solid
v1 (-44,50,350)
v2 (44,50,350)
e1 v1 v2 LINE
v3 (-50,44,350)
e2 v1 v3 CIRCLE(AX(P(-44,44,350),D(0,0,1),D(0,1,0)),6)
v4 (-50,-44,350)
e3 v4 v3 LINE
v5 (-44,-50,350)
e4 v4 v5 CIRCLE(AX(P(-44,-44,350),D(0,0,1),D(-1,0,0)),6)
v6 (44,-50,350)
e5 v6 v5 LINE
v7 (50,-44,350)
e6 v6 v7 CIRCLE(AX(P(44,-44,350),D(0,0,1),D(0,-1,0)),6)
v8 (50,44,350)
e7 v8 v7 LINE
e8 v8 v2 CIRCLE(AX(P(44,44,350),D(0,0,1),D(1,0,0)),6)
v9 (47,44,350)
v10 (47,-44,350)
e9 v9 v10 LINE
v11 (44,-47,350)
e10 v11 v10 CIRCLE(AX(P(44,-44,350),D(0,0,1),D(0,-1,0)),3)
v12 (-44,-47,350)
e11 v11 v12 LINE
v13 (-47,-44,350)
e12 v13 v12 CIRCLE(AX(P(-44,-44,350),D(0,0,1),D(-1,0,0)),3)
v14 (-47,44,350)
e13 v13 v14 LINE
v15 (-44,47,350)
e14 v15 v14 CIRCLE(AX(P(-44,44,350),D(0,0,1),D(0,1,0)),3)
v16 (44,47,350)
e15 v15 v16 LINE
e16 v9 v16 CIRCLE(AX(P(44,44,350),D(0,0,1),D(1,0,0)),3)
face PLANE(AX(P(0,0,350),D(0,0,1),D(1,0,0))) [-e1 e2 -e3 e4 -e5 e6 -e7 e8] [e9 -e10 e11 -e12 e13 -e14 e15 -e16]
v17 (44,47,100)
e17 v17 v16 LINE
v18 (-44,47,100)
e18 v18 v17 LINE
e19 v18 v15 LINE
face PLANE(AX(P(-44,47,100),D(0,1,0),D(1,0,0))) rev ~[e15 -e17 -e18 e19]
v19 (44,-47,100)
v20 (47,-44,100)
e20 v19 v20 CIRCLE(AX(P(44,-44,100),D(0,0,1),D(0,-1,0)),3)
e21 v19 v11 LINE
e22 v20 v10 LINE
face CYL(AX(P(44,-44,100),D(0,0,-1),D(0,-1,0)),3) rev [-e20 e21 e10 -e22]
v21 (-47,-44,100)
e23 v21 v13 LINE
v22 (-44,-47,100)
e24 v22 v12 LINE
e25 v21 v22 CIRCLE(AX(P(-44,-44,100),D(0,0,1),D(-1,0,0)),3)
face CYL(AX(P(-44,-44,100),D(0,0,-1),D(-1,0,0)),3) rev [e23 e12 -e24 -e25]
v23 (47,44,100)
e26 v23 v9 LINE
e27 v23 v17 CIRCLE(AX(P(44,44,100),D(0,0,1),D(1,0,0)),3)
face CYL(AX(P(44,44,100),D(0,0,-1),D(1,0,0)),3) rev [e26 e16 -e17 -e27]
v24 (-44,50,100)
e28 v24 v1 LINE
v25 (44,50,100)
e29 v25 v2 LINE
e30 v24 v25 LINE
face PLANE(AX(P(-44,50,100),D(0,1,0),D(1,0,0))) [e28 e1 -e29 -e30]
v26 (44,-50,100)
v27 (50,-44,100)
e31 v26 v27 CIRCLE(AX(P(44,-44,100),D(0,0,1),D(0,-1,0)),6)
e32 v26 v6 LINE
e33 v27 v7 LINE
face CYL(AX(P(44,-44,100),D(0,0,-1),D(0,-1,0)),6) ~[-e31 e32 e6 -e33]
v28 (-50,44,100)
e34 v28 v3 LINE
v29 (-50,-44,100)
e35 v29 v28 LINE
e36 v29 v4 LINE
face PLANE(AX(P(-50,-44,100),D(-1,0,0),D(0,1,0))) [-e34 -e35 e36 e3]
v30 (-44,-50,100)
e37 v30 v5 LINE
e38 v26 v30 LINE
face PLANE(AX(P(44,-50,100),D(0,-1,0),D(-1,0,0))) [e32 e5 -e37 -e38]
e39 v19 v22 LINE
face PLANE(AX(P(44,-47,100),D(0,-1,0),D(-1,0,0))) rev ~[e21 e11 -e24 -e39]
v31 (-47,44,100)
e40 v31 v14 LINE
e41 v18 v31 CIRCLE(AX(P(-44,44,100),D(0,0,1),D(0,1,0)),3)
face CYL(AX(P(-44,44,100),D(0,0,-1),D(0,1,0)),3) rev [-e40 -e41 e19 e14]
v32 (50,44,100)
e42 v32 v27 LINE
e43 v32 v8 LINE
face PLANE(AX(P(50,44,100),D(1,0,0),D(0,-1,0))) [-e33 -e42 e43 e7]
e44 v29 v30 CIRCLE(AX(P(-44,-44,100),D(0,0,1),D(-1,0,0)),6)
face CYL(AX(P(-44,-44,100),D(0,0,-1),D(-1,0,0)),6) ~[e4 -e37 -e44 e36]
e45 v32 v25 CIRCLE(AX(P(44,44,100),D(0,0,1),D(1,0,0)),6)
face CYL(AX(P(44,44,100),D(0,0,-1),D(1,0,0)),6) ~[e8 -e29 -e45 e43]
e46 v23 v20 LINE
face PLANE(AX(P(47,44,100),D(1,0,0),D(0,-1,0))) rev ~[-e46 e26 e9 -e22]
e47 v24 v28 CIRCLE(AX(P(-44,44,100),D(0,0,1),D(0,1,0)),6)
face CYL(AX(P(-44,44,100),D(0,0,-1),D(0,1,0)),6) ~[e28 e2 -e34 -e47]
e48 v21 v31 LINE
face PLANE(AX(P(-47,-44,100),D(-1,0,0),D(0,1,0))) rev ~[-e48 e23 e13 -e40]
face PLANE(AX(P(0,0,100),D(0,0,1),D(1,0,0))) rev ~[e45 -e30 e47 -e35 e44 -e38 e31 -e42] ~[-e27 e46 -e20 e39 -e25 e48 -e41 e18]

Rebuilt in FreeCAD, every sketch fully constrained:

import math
import FreeCAD as App
import Part
import Sketcher

V = App.Vector

doc = App.newDocument("Part")
body = doc.addObject("PartDesign::Body", "Body")

# Sketch on XY plane
sketch1 = body.newObject("Sketcher::SketchObject", "Sketch")
sketch1.AttachmentSupport = (doc.getObject("XY_Plane"), [""])
sketch1.MapMode = "FlatFace"
sketch1.AttachmentOffset = App.Placement(V(0, 0, 100), App.Rotation())
sketch1.addGeometry([
    Part.LineSegment(V(-50, 44, 0), V(-50, -44, 0)),  # 0
    Part.ArcOfCircle(Part.Circle(V(-44, -44, 0), V(0, 0, 1), 6), math.radians(180), math.radians(270)),  # 1
    Part.LineSegment(V(-44, -50, 0), V(44, -50, 0)),  # 2
    Part.ArcOfCircle(Part.Circle(V(44, -44, 0), V(0, 0, 1), 6), math.radians(-90), math.radians(0)),  # 3
    Part.LineSegment(V(50, -44, 0), V(50, 44, 0)),  # 4
    Part.ArcOfCircle(Part.Circle(V(44, 44, 0), V(0, 0, 1), 6), math.radians(0), math.radians(90)),  # 5
    Part.LineSegment(V(44, 50, 0), V(-44, 50, 0)),  # 6
    Part.ArcOfCircle(Part.Circle(V(-44, 44, 0), V(0, 0, 1), 6), math.radians(90), math.radians(180)),  # 7
    Part.ArcOfCircle(Part.Circle(V(-44, 44, 0), V(0, 0, 1), 3), math.radians(90), math.radians(180)),  # 8
    Part.LineSegment(V(-44, 47, 0), V(44, 47, 0)),  # 9
    Part.ArcOfCircle(Part.Circle(V(44, 44, 0), V(0, 0, 1), 3), math.radians(0), math.radians(90)),  # 10
    Part.LineSegment(V(47, 44, 0), V(47, -44, 0)),  # 11
    Part.ArcOfCircle(Part.Circle(V(44, -44, 0), V(0, 0, 1), 3), math.radians(-90), math.radians(0)),  # 12
    Part.LineSegment(V(44, -47, 0), V(-44, -47, 0)),  # 13
    Part.ArcOfCircle(Part.Circle(V(-44, -44, 0), V(0, 0, 1), 3), math.radians(180), math.radians(270)),  # 14
    Part.LineSegment(V(-47, -44, 0), V(-47, 44, 0)),  # 15
], False)
sketch1.addConstraint([
    Sketcher.Constraint("Tangent", 0, 2, 1, 1),
    Sketcher.Constraint("Tangent", 1, 2, 2, 1),
    Sketcher.Constraint("Tangent", 2, 2, 3, 1),
    Sketcher.Constraint("Tangent", 3, 2, 4, 1),
    Sketcher.Constraint("Tangent", 4, 2, 5, 1),
    Sketcher.Constraint("Tangent", 5, 2, 6, 1),
    Sketcher.Constraint("Tangent", 6, 2, 7, 1),
    Sketcher.Constraint("Tangent", 7, 2, 0, 1),
    Sketcher.Constraint("Tangent", 8, 1, 9, 1),
    Sketcher.Constraint("Tangent", 9, 2, 10, 2),
    Sketcher.Constraint("Tangent", 10, 1, 11, 1),
    Sketcher.Constraint("Tangent", 11, 2, 12, 2),
    Sketcher.Constraint("Tangent", 12, 1, 13, 1),
    Sketcher.Constraint("Tangent", 13, 2, 14, 2),
    Sketcher.Constraint("Tangent", 14, 1, 15, 1),
    Sketcher.Constraint("Tangent", 15, 2, 8, 2),
    Sketcher.Constraint("Vertical", 0),
    Sketcher.Constraint("Horizontal", 2),
    Sketcher.Constraint("Vertical", 4),
    Sketcher.Constraint("Horizontal", 6),
    Sketcher.Constraint("Horizontal", 9),
    Sketcher.Constraint("Vertical", 11),
    Sketcher.Constraint("Horizontal", 13),
    Sketcher.Constraint("Vertical", 15),
    Sketcher.Constraint("Coincident", 8, 3, 7, 3),
    Sketcher.Constraint("Coincident", 10, 3, 5, 3),
    Sketcher.Constraint("Coincident", 12, 3, 3, 3),
    Sketcher.Constraint("Equal", 1, 3),
    Sketcher.Constraint("Equal", 3, 5),
    Sketcher.Constraint("Equal", 5, 7),
    Sketcher.Constraint("Equal", 12, 14),
    Sketcher.Constraint("Symmetric", 1, 3, 5, 3, -1, 1),
    Sketcher.Constraint("Equal", 13, 0),
    Sketcher.Constraint("Radius", 1, 6.0),
    Sketcher.Constraint("Radius", 8, 3.0),
    Sketcher.Constraint("DistanceX", 0, 2, -1, 1, 50.0),
])
pad1 = body.newObject("PartDesign::Pad", "Pad")
pad1.Profile = sketch1
pad1.Length = 250

doc.recompute()
